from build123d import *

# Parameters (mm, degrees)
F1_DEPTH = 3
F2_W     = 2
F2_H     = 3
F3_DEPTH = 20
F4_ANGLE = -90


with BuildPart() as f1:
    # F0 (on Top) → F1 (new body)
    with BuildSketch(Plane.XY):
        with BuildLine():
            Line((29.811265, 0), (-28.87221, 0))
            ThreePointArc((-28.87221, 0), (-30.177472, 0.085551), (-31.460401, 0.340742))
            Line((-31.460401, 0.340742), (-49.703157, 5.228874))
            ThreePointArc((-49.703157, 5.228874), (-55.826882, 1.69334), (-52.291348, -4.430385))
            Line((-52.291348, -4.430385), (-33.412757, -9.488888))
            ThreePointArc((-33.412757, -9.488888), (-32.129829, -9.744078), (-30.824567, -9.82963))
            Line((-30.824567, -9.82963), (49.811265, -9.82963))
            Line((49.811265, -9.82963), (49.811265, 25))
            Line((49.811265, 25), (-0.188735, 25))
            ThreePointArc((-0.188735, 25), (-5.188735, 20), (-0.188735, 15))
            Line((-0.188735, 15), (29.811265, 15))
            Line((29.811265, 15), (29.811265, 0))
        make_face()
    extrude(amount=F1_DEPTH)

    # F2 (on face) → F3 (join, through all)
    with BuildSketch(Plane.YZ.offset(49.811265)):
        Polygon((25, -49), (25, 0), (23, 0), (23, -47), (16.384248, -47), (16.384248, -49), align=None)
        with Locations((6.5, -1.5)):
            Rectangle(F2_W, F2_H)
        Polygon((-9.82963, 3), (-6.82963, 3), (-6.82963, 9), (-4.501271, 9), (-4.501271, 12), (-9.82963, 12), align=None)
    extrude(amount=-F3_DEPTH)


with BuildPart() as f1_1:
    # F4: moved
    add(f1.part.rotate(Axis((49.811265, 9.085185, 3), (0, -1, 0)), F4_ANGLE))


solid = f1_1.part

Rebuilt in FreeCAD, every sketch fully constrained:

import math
import FreeCAD as App
import Part
import Sketcher

V = App.Vector
Q = App.Units.Quantity

doc = App.newDocument("Part")
body = doc.addObject("PartDesign::Body", "Body")

# Sketch on XY plane
sketch1 = body.newObject("Sketcher::SketchObject", "Sketch")
sketch1.AttachmentSupport = (doc.getObject("XY_Plane"), [""])
sketch1.MapMode = "FlatFace"
sketch1.addGeometry(Part.LineSegment(V(29.8, 0, 0), V(-28.9, 0, 0)), False)
sketch1.addGeometry(Part.ArcOfCircle(Part.Circle(V(-28.9, 10, 0), V(0, 0, 1), 10), math.radians(-105), math.radians(-90)), False)
sketch1.addGeometry(Part.LineSegment(V(-31.5, 0.3, 0), V(-49.7, 5.2, 0)), False)
sketch1.addGeometry(Part.ArcOfCircle(Part.Circle(V(-51, 0.4, 0), V(0, 0, 1), 5), math.radians(75), math.radians(255)), False)
sketch1.addGeometry(Part.LineSegment(V(-52.3, -4.4, 0), V(-33.4, -9.5, 0)), False)
sketch1.addGeometry(Part.ArcOfCircle(Part.Circle(V(-30.8, 0.2, 0), V(0, 0, 1), 10), math.radians(-105), math.radians(-90)), False)
sketch1.addGeometry(Part.LineSegment(V(-30.8, -9.8, 0), V(49.8, -9.8, 0)), False)
sketch1.addGeometry(Part.LineSegment(V(49.8, -9.8, 0), V(49.8, 25, 0)), False)
sketch1.addGeometry(Part.LineSegment(V(49.8, 25, 0), V(-0.2, 25, 0)), False)
sketch1.addGeometry(Part.ArcOfCircle(Part.Circle(V(-0.2, 20, 0), V(0, 0, 1), 5), math.radians(90), math.radians(270)), False)
sketch1.addGeometry(Part.LineSegment(V(-0.2, 15, 0), V(29.8, 15, 0)), False)
sketch1.addGeometry(Part.LineSegment(V(29.8, 15, 0), V(29.8, 0, 0)), False)
sketch1.addConstraint(Sketcher.Constraint("Tangent", 0, 2, 1, 2))
sketch1.addConstraint(Sketcher.Constraint("Tangent", 1, 1, 2, 1))
sketch1.addConstraint(Sketcher.Constraint("Tangent", 2, 2, 3, 1))
sketch1.addConstraint(Sketcher.Constraint("Tangent", 3, 2, 4, 1))
sketch1.addConstraint(Sketcher.Constraint("Tangent", 4, 2, 5, 1))
sketch1.addConstraint(Sketcher.Constraint("Tangent", 5, 2, 6, 1))
sketch1.addConstraint(Sketcher.Constraint("Coincident", 6, 2, 7, 1))
sketch1.addConstraint(Sketcher.Constraint("Coincident", 7, 2, 8, 1))
sketch1.addConstraint(Sketcher.Constraint("Tangent", 8, 2, 9, 1))
sketch1.addConstraint(Sketcher.Constraint("Tangent", 9, 2, 10, 1))
sketch1.addConstraint(Sketcher.Constraint("Coincident", 10, 2, 11, 1))
sketch1.addConstraint(Sketcher.Constraint("Coincident", 11, 2, 0, 1))
sketch1.addConstraint(Sketcher.Constraint("Horizontal", 0))
sketch1.addConstraint(Sketcher.Constraint("Horizontal", 6))
sketch1.addConstraint(Sketcher.Constraint("Vertical", 7))
sketch1.addConstraint(Sketcher.Constraint("Horizontal", 8))
sketch1.addConstraint(Sketcher.Constraint("Horizontal", 10))
sketch1.addConstraint(Sketcher.Constraint("Vertical", 11))
sketch1.addConstraint(Sketcher.Constraint("Equal", 3, 9))
sketch1.addConstraint(Sketcher.Constraint("PointOnObject", 0, 2, -1))
sketch1.addConstraint(Sketcher.Constraint("Parallel", 2, 4))
sketch1.addConstraint(Sketcher.Constraint("Radius", 3, Q("5 mm")))
sketch1.addConstraint(Sketcher.Constraint("DistanceX", 8, 2, 8, 1, Q("50 mm")))
sketch1.addConstraint(Sketcher.Constraint("DistanceX", 10, 1, 10, 2, Q("30 mm")))
sketch1.addConstraint(Sketcher.Constraint("DistanceY", 11, 2, 11, 1, Q("15 mm")))
sketch1.addConstraint(Sketcher.Constraint("Angle", 2, Q("164.999999 deg")))
sketch1.addConstraint(Sketcher.Constraint("Radius", 1, Q("9.999948 mm")))
sketch1.addConstraint(Sketcher.Constraint("Radius", 5, Q("10.000048 mm")))
sketch1.addConstraint(Sketcher.Constraint("DistanceX", 6, 1, 6, 2, Q("80.635832 mm")))
sketch1.addConstraint(Sketcher.Constraint("DistanceY", 7, 1, 7, 2, Q("34.82963 mm")))
sketch1.addConstraint(Sketcher.Constraint("DistanceX", 1, 1, -1, 1, Q("31.460401 mm")))
sketch1.addConstraint(Sketcher.Constraint("Distance", 2, Q("18.886291 mm")))
pad1 = body.newObject("PartDesign::Pad", "Pad")
pad1.Profile = sketch1
pad1.Length = 3

# Sketch on YZ plane
sketch2 = body.newObject("Sketcher::SketchObject", "Sketch001")
sketch2.AttachmentSupport = (doc.getObject("YZ_Plane"), [""])
sketch2.MapMode = "FlatFace"
sketch2.AttachmentOffset = App.Placement(V(0, 0, 49.811265), App.Rotation())
sketch2.addGeometry(Part.LineSegment(V(25, -49, 0), V(25, 0, 0)), False)
sketch2.addGeometry(Part.LineSegment(V(25, 0, 0), V(23, 0, 0)), False)
sketch2.addGeometry(Part.LineSegment(V(23, 0, 0), V(23, -47, 0)), False)
sketch2.addGeometry(Part.LineSegment(V(23, -47, 0), V(16.4, -47, 0)), False)
sketch2.addGeometry(Part.LineSegment(V(16.4, -47, 0), V(16.4, -49, 0)), False)
sketch2.addGeometry(Part.LineSegment(V(16.4, -49, 0), V(25, -49, 0)), False)
sketch2.addGeometry(Part.LineSegment(V(5.5, 0, 0), V(5.5, -3, 0)), False)
sketch2.addGeometry(Part.LineSegment(V(5.5, -3, 0), V(7.5, -3, 0)), False)
sketch2.addGeometry(Part.LineSegment(V(7.5, -3, 0), V(7.5, 0, 0)), False)
sketch2.addGeometry(Part.LineSegment(V(7.5, 0, 0), V(5.5, 0, 0)), False)
sketch2.addGeometry(Part.LineSegment(V(-9.8, 3, 0), V(-6.8, 3, 0)), False)
sketch2.addGeometry(Part.LineSegment(V(-6.8, 3, 0), V(-6.8, 9, 0)), False)
sketch2.addGeometry(Part.LineSegment(V(-6.8, 9, 0), V(-4.5, 9, 0)), False)
sketch2.addGeometry(Part.LineSegment(V(-4.5, 9, 0), V(-4.5, 12, 0)), False)
sketch2.addGeometry(Part.LineSegment(V(-4.5, 12, 0), V(-9.8, 12, 0)), False)
sketch2.addGeometry(Part.LineSegment(V(-9.8, 12, 0), V(-9.8, 3, 0)), False)
sketch2.addConstraint(Sketcher.Constraint("Coincident", 0, 2, 1, 1))
sketch2.addConstraint(Sketcher.Constraint("Coincident", 1, 2, 2, 1))
sketch2.addConstraint(Sketcher.Constraint("Coincident", 2, 2, 3, 1))
sketch2.addConstraint(Sketcher.Constraint("Coincident", 3, 2, 4, 1))
sketch2.addConstraint(Sketcher.Constraint("Coincident", 4, 2, 5, 1))
sketch2.addConstraint(Sketcher.Constraint("Coincident", 5, 2, 0, 1))
sketch2.addConstraint(Sketcher.Constraint("Coincident", 6, 2, 7, 1))
sketch2.addConstraint(Sketcher.Constraint("Coincident", 7, 2, 8, 1))
sketch2.addConstraint(Sketcher.Constraint("Coincident", 8, 2, 9, 1))
sketch2.addConstraint(Sketcher.Constraint("Coincident", 9, 2, 6, 1))
sketch2.addConstraint(Sketcher.Constraint("Coincident", 10, 2, 11, 1))
sketch2.addConstraint(Sketcher.Constraint("Coincident", 11, 2, 12, 1))
sketch2.addConstraint(Sketcher.Constraint("Coincident", 12, 2, 13, 1))
sketch2.addConstraint(Sketcher.Constraint("Coincident", 13, 2, 14, 1))
sketch2.addConstraint(Sketcher.Constraint("Coincident", 14, 2, 15, 1))
sketch2.addConstraint(Sketcher.Constraint("Coincident", 15, 2, 10, 1))
sketch2.addConstraint(Sketcher.Constraint("Vertical", 0))
sketch2.addConstraint(Sketcher.Constraint("Horizontal", 1))
sketch2.addConstraint(Sketcher.Constraint("Vertical", 2))
sketch2.addConstraint(Sketcher.Constraint("Horizontal", 3))
sketch2.addConstraint(Sketcher.Constraint("Vertical", 4))
sketch2.addConstraint(Sketcher.Constraint("Horizontal", 5))
sketch2.addConstraint(Sketcher.Constraint("Vertical", 6))
sketch2.addConstraint(Sketcher.Constraint("Horizontal", 7))
sketch2.addConstraint(Sketcher.Constraint("Vertical", 8))
sketch2.addConstraint(Sketcher.Constraint("Horizontal", 9))
sketch2.addConstraint(Sketcher.Constraint("Horizontal", 10))
sketch2.addConstraint(Sketcher.Constraint("Vertical", 11))
sketch2.addConstraint(Sketcher.Constraint("Horizontal", 12))
sketch2.addConstraint(Sketcher.Constraint("Vertical", 13))
sketch2.addConstraint(Sketcher.Constraint("Horizontal", 14))
sketch2.addConstraint(Sketcher.Constraint("Vertical", 15))
sketch2.addConstraint(Sketcher.Constraint("PointOnObject", 0, 2, -1))
sketch2.addConstraint(Sketcher.Constraint("PointOnObject", 8, 2, -1))
sketch2.addConstraint(Sketcher.Constraint("Equal", 1, 7))
sketch2.addConstraint(Sketcher.Constraint("Equal", 9, 4))
sketch2.addConstraint(Sketcher.Constraint("Equal", 10, 6))
sketch2.addConstraint(Sketcher.Constraint("Equal", 8, 13))
sketch2.addConstraint(Sketcher.Constraint("DistanceX", 1, 2, 1, 1, Q("2 mm")))
sketch2.addConstraint(Sketcher.Constraint("DistanceX", 10, 1, 10, 2, Q("3 mm")))
sketch2.addConstraint(Sketcher.Constraint("DistanceY", 0, 1, 0, 2, Q("49 mm")))
sketch2.addConstraint(Sketcher.Constraint("DistanceY", 11, 1, 11, 2, Q("6 mm")))
sketch2.addConstraint(Sketcher.Constraint("DistanceX", -1, 1, 0, 2, Q("25 mm")))
sketch2.addConstraint(Sketcher.Constraint("DistanceY", -1, 1, 10, 2, Q("3 mm")))
sketch2.addConstraint(Sketcher.Constraint("DistanceX", -1, 1, 6, 2, Q("5.5 mm")))
sketch2.addConstraint(Sketcher.Constraint("DistanceX", 12, 1, 12, 2, Q("2.328359 mm")))
sketch2.addConstraint(Sketcher.Constraint("DistanceX", 3, 2, 3, 1, Q("6.615752 mm")))
sketch2.addConstraint(Sketcher.Constraint("DistanceX", 10, 2, -1, 1, Q("6.82963 mm")))
pad2 = body.newObject("PartDesign::Pad", "Pad001")
pad2.Profile = sketch2
pad2.Length = 20
pad2.Reversed = True
body2 = doc.addObject("PartDesign::Body", "Body001")
doc.recompute()

body.Placement = App.Placement(V(46.811265, 0, 52.811265), App.Rotation(V(0, -1, 0), 270))
boolean = body2.newObject("PartDesign::Boolean", "Boolean")
boolean.Type = "Fuse"
boolean.addObjects([body])

doc.recompute()
